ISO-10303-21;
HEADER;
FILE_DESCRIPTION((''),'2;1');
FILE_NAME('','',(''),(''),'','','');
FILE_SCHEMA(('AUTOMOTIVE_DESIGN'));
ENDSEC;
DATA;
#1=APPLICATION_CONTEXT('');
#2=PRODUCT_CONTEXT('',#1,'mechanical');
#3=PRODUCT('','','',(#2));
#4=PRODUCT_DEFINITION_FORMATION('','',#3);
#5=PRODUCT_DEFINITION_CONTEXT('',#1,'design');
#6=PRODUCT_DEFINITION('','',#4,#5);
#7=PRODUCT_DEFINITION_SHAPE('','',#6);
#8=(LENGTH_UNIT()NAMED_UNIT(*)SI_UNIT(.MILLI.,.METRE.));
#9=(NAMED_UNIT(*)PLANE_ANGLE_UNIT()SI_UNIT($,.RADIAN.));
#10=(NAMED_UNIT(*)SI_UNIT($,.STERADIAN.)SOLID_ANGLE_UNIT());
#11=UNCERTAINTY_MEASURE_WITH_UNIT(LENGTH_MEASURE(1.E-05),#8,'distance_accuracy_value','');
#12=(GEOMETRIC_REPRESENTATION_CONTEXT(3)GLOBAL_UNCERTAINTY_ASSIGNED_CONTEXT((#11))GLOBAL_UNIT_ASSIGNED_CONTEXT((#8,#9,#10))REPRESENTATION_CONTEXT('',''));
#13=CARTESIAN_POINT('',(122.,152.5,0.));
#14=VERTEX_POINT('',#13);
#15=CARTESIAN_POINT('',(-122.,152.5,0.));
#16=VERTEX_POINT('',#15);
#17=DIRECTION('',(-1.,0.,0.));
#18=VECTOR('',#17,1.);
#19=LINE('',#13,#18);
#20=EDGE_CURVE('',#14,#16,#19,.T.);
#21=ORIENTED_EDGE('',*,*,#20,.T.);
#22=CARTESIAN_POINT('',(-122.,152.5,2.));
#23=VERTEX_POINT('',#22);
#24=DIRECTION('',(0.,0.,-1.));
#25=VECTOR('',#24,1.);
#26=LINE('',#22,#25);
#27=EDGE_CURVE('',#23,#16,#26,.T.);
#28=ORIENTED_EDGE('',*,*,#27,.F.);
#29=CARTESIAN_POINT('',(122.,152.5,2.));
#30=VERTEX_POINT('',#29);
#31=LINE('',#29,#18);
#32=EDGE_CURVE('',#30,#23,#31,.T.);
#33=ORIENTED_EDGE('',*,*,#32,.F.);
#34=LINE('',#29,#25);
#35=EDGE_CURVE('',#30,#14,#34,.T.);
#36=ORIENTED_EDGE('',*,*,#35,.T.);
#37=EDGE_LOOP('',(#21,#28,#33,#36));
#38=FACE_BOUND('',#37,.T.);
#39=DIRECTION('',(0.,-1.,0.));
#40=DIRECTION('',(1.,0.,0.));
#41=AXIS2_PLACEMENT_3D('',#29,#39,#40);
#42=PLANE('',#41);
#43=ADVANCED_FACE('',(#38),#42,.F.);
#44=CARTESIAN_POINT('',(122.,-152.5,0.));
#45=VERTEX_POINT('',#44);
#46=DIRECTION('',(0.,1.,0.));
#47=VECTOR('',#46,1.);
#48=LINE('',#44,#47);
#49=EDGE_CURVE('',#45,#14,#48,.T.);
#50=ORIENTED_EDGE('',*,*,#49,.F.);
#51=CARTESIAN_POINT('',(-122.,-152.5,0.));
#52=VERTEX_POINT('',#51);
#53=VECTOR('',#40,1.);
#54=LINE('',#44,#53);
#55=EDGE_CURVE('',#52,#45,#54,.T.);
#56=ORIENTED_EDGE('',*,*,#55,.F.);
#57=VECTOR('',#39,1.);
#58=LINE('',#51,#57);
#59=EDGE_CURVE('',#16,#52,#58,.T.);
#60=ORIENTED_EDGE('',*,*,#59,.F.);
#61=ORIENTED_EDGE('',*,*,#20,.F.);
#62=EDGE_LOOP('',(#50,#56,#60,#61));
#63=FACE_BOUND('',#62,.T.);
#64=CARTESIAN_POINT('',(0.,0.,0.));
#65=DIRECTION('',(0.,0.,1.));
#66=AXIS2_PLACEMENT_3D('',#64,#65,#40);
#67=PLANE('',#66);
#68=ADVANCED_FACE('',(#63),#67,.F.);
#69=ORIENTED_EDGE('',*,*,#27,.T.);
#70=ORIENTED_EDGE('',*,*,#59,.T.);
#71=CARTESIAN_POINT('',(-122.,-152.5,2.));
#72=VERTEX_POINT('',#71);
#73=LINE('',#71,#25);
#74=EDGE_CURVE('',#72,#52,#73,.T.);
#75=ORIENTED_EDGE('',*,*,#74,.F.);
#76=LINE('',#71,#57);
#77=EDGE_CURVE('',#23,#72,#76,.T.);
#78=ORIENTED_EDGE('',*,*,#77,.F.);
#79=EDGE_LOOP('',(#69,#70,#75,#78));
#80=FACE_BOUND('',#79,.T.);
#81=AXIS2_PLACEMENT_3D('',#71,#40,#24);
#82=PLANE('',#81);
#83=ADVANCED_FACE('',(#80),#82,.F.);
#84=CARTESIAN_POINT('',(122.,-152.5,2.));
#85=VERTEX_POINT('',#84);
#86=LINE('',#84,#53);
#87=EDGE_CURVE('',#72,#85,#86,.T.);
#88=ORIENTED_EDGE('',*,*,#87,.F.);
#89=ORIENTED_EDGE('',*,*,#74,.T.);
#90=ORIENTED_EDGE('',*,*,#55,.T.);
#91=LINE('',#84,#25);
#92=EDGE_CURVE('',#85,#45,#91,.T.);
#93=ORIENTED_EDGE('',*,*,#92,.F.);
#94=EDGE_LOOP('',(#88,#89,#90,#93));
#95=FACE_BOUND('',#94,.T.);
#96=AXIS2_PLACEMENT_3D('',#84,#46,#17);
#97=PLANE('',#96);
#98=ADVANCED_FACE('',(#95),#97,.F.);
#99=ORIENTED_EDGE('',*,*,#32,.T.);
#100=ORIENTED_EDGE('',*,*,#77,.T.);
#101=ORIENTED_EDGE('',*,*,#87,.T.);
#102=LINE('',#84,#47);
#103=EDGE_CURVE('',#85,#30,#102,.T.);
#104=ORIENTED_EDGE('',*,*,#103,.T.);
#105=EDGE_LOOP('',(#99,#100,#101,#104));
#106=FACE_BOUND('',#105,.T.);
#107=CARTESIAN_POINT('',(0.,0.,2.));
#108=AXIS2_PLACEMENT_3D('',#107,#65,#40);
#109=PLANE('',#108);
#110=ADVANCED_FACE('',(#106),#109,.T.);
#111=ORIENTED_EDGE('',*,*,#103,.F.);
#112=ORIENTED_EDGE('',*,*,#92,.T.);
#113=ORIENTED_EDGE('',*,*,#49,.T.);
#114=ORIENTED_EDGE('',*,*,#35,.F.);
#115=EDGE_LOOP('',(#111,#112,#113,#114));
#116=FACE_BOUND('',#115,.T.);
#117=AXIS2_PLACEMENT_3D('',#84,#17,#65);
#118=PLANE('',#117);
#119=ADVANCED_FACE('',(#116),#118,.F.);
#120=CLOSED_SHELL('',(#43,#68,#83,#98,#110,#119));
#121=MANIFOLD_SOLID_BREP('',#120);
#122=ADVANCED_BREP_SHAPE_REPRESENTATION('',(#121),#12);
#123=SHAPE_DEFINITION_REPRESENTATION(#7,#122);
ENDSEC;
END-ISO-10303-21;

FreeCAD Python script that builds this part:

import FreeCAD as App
import Part
import Sketcher

V = App.Vector

doc = App.newDocument("Part")
body = doc.addObject("PartDesign::Body", "Body")

# Sketch on XY plane
sketch1 = body.newObject("Sketcher::SketchObject", "Sketch")
sketch1.AttachmentSupport = (doc.getObject("XY_Plane"), [""])
sketch1.MapMode = "FlatFace"
sketch1.addGeometry(Part.LineSegment(V(-122, 152, 0), V(-122, -152, 0)), False)
sketch1.addGeometry(Part.LineSegment(V(-122, -152, 0), V(122, -152, 0)), False)
sketch1.addGeometry(Part.LineSegment(V(122, -152, 0), V(122, 152, 0)), False)
sketch1.addGeometry(Part.LineSegment(V(122, 152, 0), V(-122, 152, 0)), False)
sketch1.addConstraint(Sketcher.Constraint("Coincident", 0, 2, 1, 1))
sketch1.addConstraint(Sketcher.Constraint("Coincident", 1, 2, 2, 1))
sketch1.addConstraint(Sketcher.Constraint("Coincident", 2, 2, 3, 1))
sketch1.addConstraint(Sketcher.Constraint("Coincident", 3, 2, 0, 1))
sketch1.addConstraint(Sketcher.Constraint("Vertical", 0))
sketch1.addConstraint(Sketcher.Constraint("Horizontal", 1))
sketch1.addConstraint(Sketcher.Constraint("Vertical", 2))
sketch1.addConstraint(Sketcher.Constraint("Horizontal", 3))
sketch1.addConstraint(Sketcher.Constraint("Symmetric", 0, 2, 2, 2, -1, 1))
sketch1.addConstraint(Sketcher.Constraint("DistanceX", 1, 1, 1, 2, 244.0))
sketch1.addConstraint(Sketcher.Constraint("DistanceY", 0, 2, 0, 1, 305.0))
pad1 = body.newObject("PartDesign::Pad", "Pad")
pad1.Profile = sketch1
pad1.Length = 2

doc.recompute()
